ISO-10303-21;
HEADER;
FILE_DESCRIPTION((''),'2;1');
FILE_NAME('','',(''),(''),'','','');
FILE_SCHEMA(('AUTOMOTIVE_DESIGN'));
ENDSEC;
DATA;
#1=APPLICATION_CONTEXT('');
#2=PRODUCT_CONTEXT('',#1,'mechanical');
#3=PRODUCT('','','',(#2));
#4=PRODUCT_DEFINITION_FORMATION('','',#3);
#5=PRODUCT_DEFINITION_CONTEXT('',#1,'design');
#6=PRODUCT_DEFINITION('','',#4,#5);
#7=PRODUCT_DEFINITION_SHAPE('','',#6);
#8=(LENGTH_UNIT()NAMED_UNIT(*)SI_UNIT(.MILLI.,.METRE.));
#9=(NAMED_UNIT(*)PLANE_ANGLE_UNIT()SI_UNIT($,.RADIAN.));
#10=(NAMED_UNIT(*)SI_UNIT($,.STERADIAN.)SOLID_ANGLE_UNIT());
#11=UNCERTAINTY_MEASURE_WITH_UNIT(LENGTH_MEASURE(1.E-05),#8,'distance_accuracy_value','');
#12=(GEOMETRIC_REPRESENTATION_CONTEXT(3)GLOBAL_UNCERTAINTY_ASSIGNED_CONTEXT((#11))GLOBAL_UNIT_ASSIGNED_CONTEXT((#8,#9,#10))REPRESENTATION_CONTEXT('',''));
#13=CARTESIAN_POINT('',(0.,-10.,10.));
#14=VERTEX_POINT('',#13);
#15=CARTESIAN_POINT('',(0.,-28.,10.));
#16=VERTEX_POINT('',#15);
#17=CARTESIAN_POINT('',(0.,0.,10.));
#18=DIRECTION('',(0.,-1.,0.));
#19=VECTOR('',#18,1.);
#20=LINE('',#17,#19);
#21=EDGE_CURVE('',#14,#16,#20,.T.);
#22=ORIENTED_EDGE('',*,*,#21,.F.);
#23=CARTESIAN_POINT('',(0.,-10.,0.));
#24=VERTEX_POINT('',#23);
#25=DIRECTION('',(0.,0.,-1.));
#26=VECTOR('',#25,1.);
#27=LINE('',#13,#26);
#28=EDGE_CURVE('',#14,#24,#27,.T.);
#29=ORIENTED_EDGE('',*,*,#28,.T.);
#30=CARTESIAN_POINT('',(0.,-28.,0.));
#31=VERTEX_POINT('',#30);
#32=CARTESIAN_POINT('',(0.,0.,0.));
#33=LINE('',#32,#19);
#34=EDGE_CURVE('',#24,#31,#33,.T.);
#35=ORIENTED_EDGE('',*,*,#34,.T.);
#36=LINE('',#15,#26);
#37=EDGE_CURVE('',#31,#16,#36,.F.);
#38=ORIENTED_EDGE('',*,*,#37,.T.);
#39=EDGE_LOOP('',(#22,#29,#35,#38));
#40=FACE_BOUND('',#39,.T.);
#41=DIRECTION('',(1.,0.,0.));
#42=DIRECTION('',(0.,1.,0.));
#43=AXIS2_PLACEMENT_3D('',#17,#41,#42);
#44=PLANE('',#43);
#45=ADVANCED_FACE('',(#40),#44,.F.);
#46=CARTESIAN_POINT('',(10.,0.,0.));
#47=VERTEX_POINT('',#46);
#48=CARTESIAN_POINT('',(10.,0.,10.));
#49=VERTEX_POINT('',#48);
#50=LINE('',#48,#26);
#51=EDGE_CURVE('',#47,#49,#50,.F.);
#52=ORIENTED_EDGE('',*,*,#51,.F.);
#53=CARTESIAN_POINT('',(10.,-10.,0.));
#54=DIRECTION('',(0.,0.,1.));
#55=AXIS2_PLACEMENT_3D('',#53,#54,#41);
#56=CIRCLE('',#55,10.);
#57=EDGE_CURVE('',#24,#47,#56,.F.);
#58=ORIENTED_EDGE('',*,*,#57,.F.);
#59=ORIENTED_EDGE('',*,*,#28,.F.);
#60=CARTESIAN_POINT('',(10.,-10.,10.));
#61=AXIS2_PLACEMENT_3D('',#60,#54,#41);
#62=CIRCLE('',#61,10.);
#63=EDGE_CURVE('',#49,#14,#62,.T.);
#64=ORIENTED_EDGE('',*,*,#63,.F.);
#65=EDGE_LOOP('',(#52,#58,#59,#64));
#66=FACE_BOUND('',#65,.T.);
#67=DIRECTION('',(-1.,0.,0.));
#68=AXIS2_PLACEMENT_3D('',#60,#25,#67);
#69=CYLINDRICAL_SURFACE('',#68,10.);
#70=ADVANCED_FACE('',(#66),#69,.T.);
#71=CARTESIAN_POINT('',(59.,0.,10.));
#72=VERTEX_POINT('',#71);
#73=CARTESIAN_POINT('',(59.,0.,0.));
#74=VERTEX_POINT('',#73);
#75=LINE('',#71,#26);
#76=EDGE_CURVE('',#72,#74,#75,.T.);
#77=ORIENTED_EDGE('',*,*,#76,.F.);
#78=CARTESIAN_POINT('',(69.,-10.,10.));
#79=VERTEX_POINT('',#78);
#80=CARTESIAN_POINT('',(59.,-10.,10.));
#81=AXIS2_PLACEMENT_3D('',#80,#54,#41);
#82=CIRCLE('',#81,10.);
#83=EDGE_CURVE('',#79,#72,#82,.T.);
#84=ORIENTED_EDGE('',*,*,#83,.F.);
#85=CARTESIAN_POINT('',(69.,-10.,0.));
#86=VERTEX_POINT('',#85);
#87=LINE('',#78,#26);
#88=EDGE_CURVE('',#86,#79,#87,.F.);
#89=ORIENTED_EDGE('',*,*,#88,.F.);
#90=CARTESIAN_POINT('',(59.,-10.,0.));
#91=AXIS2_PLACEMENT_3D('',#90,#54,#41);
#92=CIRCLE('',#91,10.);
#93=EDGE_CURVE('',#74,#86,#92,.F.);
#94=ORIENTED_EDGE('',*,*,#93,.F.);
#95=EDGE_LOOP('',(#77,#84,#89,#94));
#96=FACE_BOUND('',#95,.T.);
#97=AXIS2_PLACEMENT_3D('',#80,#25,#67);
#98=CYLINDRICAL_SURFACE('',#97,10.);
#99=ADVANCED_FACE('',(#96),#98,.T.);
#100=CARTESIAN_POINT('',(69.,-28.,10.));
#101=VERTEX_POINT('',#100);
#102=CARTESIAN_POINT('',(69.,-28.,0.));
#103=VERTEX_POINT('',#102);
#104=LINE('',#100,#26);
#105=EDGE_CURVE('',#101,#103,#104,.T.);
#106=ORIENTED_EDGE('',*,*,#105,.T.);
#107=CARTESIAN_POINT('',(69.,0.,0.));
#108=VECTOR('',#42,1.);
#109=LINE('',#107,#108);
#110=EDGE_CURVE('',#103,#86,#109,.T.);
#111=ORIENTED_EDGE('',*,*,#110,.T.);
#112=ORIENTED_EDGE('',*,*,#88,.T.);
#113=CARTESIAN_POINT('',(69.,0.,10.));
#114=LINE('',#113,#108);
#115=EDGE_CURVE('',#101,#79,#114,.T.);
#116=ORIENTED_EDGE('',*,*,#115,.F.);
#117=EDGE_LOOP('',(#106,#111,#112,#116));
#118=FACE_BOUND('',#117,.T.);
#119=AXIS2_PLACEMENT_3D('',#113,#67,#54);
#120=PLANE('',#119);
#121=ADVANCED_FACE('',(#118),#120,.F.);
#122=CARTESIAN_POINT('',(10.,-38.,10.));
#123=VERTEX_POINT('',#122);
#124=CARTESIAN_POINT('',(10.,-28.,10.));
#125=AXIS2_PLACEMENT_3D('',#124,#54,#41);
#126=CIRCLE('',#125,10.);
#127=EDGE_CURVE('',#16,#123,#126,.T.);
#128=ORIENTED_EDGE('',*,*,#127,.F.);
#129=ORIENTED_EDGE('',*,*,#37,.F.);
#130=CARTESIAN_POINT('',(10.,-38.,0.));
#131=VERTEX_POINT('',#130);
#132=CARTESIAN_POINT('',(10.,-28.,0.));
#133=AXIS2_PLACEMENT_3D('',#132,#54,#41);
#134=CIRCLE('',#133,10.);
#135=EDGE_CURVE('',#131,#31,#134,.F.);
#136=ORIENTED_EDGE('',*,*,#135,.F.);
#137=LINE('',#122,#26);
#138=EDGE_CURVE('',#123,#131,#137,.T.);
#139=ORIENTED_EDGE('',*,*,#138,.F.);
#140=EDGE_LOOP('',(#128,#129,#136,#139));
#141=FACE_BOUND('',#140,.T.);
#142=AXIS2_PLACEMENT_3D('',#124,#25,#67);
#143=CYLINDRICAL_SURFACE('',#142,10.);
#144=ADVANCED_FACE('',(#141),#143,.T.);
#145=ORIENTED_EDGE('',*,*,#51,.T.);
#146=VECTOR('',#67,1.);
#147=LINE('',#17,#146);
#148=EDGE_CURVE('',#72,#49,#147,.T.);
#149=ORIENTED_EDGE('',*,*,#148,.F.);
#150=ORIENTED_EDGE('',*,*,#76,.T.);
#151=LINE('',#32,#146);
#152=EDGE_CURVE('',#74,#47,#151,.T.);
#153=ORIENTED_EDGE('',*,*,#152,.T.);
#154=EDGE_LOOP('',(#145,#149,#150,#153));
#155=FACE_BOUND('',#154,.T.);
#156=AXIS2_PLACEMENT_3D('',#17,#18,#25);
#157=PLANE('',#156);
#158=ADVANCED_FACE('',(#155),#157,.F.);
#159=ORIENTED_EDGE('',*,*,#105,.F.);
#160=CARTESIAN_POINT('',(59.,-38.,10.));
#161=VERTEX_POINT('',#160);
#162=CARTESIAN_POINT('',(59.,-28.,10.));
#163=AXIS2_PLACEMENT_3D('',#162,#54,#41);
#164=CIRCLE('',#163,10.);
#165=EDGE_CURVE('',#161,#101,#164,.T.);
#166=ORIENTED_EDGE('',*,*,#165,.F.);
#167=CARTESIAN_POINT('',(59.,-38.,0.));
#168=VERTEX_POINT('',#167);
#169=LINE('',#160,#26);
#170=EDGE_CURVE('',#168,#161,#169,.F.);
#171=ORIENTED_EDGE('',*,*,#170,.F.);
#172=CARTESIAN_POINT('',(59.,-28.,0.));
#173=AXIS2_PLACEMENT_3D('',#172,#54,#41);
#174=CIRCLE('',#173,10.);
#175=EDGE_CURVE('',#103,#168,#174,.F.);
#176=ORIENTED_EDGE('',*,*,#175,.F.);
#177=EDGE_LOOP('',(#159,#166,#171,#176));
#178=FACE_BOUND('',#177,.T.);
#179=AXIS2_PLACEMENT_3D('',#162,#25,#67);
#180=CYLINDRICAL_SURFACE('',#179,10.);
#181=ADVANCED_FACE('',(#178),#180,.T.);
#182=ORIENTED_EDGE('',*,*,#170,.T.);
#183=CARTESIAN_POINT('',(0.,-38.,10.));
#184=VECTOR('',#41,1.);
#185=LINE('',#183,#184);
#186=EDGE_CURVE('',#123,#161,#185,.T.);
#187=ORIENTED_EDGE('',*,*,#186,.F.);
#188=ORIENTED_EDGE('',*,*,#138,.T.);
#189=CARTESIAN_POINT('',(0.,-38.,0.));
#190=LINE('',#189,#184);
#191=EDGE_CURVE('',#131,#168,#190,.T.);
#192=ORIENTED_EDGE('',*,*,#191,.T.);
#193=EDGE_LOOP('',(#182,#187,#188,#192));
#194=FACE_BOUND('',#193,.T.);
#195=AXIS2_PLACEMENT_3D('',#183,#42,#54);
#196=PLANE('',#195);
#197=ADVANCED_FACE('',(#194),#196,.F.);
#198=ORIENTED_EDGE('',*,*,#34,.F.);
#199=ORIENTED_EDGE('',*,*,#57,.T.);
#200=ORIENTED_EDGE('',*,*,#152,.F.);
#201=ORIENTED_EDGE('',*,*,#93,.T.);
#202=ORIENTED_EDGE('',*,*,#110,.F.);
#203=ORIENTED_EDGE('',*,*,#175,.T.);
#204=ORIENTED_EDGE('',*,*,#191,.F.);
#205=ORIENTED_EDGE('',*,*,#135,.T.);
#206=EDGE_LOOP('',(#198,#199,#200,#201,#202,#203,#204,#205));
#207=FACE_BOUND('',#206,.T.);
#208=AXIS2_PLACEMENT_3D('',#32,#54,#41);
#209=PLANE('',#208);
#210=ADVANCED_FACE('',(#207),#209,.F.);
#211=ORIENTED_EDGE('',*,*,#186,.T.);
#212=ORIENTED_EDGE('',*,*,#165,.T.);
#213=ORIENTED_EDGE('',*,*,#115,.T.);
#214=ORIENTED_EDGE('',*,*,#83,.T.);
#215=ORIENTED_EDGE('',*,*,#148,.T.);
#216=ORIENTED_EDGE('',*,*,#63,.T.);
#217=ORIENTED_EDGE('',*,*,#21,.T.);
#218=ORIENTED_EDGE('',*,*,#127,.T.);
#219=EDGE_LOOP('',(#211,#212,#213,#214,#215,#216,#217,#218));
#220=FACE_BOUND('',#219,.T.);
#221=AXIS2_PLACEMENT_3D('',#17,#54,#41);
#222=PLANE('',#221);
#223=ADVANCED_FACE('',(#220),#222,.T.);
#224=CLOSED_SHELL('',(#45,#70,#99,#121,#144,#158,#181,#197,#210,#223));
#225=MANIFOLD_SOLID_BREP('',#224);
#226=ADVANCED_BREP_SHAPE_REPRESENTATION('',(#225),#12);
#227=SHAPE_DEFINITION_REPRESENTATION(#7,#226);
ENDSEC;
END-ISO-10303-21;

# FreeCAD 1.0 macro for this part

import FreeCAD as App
import Part
import Sketcher

V = App.Vector


def edges_at(feature, points):
    """Names of the edges that pass closest to the given points."""
    edges = feature.Shape.Edges
    near = lambda p: min(range(len(edges)), key=lambda i: edges[i].distToShape(Part.Vertex(*p))[0])
    return sorted({f"Edge{near(p) + 1}" for p in points})

doc = App.newDocument("Part")
params = doc.addObject("Spreadsheet::Sheet", "Params")
for row, (alias, value) in enumerate([
    ("sketch1_width", "69 mm"),
    ("sketch1_height", "38 mm"),
    ("pad1_length", "10 mm"),
    ("fillet_radius", "10 mm"),
], start=1):
    params.set(f"A{row}", alias)
    params.set(f"B{row}", "=" + value)
    params.setAlias(f"B{row}", alias)

body = doc.addObject("PartDesign::Body", "Body")

sketch1 = body.newObject("Sketcher::SketchObject", "Sketch")
sketch1.AttachmentSupport = (doc.getObject("XY_Plane"), [""])
sketch1.MapMode = "FlatFace"
sketch1.addGeometry([
    Part.LineSegment(V(0, 0, 0), V(0, -38, 0)),
    Part.LineSegment(V(0, -38, 0), V(69, -38, 0)),
    Part.LineSegment(V(69, -38, 0), V(69, 0, 0)),
    Part.LineSegment(V(69, 0, 0), V(0, 0, 0)),
], False)
sketch1.addConstraint([
    Sketcher.Constraint("Coincident", 0, 2, 1, 1),
    Sketcher.Constraint("Coincident", 1, 2, 2, 1),
    Sketcher.Constraint("Coincident", 2, 2, 3, 1),
    Sketcher.Constraint("Coincident", 3, 2, 0, 1),
    Sketcher.Constraint("Vertical", 0),
    Sketcher.Constraint("Horizontal", 1),
    Sketcher.Constraint("Vertical", 2),
    Sketcher.Constraint("Horizontal", 3),
    Sketcher.Constraint("Coincident", 3, 2, -1, 1),
    Sketcher.Constraint("DistanceX", 1, 1, 1, 2, 69.0),
    Sketcher.Constraint("DistanceY", 0, 2, 0, 1, 38.0),
])
sketch1.setExpression("Constraints[9]", "Params.sketch1_width")
sketch1.setExpression("Constraints[10]", "Params.sketch1_height")
pad1 = body.newObject("PartDesign::Pad", "Pad")
pad1.Profile = sketch1
pad1.setExpression("Length", "Params.pad1_length")
doc.recompute()

fillet = body.newObject("PartDesign::Fillet", "Fillet")
fillet.Base = (pad1, edges_at(pad1, [
    (0, 0, 5),
    (69, 0, 5),
    (69, -38, 5),
    (0, -38, 5),
]))
fillet.setExpression("Radius", "Params.fillet_radius")

doc.recompute()
